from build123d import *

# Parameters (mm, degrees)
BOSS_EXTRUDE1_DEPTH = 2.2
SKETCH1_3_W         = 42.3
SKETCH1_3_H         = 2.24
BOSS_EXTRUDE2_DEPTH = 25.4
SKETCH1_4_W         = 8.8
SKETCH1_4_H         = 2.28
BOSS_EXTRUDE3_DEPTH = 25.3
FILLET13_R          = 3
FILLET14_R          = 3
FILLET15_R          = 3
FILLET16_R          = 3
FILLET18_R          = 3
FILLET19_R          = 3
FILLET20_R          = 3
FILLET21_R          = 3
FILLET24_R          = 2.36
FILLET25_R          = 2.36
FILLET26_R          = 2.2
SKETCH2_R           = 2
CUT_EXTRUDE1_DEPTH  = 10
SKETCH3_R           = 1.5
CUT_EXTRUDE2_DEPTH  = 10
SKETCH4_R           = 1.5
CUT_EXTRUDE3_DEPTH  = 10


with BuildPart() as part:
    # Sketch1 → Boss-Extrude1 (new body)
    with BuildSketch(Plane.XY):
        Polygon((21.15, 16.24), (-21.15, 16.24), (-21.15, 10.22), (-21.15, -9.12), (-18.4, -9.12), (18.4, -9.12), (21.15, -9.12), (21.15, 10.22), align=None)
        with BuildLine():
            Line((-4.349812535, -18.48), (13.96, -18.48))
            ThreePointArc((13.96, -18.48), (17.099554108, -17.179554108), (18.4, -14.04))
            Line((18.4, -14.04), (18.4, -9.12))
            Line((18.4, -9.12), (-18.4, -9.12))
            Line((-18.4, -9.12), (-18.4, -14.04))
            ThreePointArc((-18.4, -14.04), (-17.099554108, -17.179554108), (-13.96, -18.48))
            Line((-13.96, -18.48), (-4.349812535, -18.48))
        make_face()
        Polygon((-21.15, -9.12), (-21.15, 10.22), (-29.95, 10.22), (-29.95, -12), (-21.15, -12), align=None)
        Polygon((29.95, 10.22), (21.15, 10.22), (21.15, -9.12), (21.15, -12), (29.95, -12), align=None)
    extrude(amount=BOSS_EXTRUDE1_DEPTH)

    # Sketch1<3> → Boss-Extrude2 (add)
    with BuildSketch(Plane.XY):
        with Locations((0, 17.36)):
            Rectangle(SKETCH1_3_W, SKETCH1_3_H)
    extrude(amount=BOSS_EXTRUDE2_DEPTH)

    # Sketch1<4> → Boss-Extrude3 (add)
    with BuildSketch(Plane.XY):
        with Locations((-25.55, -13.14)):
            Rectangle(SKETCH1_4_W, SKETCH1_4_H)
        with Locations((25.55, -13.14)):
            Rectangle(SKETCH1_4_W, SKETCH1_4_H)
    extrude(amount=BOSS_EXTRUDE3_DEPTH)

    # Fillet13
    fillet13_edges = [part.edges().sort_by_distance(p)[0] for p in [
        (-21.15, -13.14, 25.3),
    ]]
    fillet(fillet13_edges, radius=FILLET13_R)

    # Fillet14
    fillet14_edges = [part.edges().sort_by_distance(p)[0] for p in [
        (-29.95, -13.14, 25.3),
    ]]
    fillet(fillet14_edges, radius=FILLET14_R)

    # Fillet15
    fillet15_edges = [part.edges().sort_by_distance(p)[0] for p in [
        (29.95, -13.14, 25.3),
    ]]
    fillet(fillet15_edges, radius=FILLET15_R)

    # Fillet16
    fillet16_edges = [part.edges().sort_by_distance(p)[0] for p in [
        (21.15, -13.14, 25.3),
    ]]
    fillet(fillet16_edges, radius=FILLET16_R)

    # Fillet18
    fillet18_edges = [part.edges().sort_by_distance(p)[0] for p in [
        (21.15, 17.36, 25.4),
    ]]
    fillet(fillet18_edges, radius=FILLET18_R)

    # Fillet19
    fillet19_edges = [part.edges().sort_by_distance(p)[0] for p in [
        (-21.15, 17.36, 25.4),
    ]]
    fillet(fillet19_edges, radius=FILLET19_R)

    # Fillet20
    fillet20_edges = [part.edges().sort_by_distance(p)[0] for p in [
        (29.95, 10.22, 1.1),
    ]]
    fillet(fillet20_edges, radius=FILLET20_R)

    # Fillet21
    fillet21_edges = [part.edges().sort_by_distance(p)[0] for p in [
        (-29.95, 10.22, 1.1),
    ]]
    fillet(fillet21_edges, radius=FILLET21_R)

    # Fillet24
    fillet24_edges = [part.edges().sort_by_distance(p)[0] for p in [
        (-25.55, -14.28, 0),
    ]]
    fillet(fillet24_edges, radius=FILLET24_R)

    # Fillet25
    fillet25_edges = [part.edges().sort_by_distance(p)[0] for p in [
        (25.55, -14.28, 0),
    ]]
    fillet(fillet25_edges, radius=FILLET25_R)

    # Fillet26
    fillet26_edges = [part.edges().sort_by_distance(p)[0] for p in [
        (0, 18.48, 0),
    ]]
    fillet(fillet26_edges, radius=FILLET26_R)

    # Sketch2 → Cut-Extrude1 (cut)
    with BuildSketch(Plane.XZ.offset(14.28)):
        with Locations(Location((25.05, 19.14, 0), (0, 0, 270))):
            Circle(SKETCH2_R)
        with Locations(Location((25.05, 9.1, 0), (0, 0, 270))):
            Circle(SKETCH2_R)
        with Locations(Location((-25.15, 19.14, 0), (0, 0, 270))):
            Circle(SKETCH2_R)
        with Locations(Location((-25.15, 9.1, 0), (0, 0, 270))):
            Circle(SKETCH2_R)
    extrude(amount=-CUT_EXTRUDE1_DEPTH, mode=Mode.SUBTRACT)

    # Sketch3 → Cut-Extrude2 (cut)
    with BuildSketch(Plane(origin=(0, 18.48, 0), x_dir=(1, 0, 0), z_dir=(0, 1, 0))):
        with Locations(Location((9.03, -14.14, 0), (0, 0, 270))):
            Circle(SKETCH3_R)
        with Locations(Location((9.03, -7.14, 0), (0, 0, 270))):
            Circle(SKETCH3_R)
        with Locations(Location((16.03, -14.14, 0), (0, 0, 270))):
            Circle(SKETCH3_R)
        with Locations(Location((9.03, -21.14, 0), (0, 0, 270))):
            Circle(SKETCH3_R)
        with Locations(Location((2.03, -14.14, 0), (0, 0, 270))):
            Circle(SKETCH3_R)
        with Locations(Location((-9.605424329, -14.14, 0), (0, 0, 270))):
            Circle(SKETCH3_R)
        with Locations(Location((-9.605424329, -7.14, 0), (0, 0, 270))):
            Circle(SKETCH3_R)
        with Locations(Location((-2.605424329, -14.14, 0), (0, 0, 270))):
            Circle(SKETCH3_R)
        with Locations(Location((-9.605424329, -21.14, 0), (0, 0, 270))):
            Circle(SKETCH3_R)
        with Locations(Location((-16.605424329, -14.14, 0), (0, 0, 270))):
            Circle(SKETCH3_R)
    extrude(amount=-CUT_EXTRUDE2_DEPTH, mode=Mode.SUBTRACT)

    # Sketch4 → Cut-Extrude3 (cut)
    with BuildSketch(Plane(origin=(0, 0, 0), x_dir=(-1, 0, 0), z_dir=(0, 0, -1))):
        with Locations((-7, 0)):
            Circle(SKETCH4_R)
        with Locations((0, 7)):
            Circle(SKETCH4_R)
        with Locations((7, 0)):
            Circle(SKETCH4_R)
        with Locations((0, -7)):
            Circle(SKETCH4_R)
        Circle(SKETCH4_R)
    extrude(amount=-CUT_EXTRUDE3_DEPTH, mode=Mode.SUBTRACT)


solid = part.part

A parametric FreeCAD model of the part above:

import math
import FreeCAD as App
import Part
import Sketcher
Q = App.Units.Quantity


def edges_at(feature, points):
    """Names of the edges that pass closest to the given points."""
    edges = feature.Shape.Edges
    near = lambda p: min(range(len(edges)), key=lambda i: edges[i].distToShape(Part.Vertex(*p))[0])
    return sorted({f"Edge{near(p) + 1}" for p in points})

doc = App.newDocument("Part")
body = doc.addObject("PartDesign::Body", "Body")

# Sketch on XY plane
sketch1 = body.newObject("Sketcher::SketchObject", "Sketch")
sketch1.AttachmentSupport = (doc.getObject("XY_Plane"), [""])
sketch1.MapMode = "FlatFace"
sketch1.addGeometry(Part.LineSegment(App.Vector(21.1, 16.2, 0), App.Vector(-21.1, 16.2, 0)), False)
sketch1.addGeometry(Part.LineSegment(App.Vector(-21.1, 16.2, 0), App.Vector(-21.1, 10.2, 0)), False)
sketch1.addGeometry(Part.LineSegment(App.Vector(-21.1, 10.2, 0), App.Vector(-29.9, 10.2, 0)), False)
sketch1.addGeometry(Part.LineSegment(App.Vector(-29.9, 10.2, 0), App.Vector(-29.9, -12, 0)), False)
sketch1.addGeometry(Part.LineSegment(App.Vector(-29.9, -12, 0), App.Vector(-21.1, -12, 0)), False)
sketch1.addGeometry(Part.LineSegment(App.Vector(-21.1, -12, 0), App.Vector(-21.1, -9.1, 0)), False)
sketch1.addGeometry(Part.LineSegment(App.Vector(-21.1, -9.1, 0), App.Vector(-18.4, -9.1, 0)), False)
sketch1.addGeometry(Part.LineSegment(App.Vector(-18.4, -9.1, 0), App.Vector(-18.4, -14, 0)), False)
sketch1.addGeometry(Part.ArcOfCircle(Part.Circle(App.Vector(-14, -14, 0), App.Vector(0, 0, 1), 4.4), math.radians(-180), math.radians(-90)), False)
sketch1.addGeometry(Part.LineSegment(App.Vector(-14, -18.5, 0), App.Vector(14, -18.5, 0)), False)
sketch1.addGeometry(Part.ArcOfCircle(Part.Circle(App.Vector(14, -14, 0), App.Vector(0, 0, 1), 4.4), math.radians(-90), math.radians(0)), False)
sketch1.addGeometry(Part.LineSegment(App.Vector(18.4, -14, 0), App.Vector(18.4, -9.1, 0)), False)
sketch1.addGeometry(Part.LineSegment(App.Vector(18.4, -9.1, 0), App.Vector(21.1, -9.1, 0)), False)
sketch1.addGeometry(Part.LineSegment(App.Vector(21.1, -9.1, 0), App.Vector(21.1, -12, 0)), False)
sketch1.addGeometry(Part.LineSegment(App.Vector(21.1, -12, 0), App.Vector(29.9, -12, 0)), False)
sketch1.addGeometry(Part.LineSegment(App.Vector(29.9, -12, 0), App.Vector(29.9, 10.2, 0)), False)
sketch1.addGeometry(Part.LineSegment(App.Vector(29.9, 10.2, 0), App.Vector(21.1, 10.2, 0)), False)
sketch1.addGeometry(Part.LineSegment(App.Vector(21.1, 10.2, 0), App.Vector(21.1, 16.2, 0)), False)
sketch1.addConstraint(Sketcher.Constraint("Coincident", 0, 2, 1, 1))
sketch1.addConstraint(Sketcher.Constraint("Coincident", 1, 2, 2, 1))
sketch1.addConstraint(Sketcher.Constraint("Coincident", 2, 2, 3, 1))
sketch1.addConstraint(Sketcher.Constraint("Coincident", 3, 2, 4, 1))
sketch1.addConstraint(Sketcher.Constraint("Coincident", 4, 2, 5, 1))
sketch1.addConstraint(Sketcher.Constraint("Coincident", 5, 2, 6, 1))
sketch1.addConstraint(Sketcher.Constraint("Coincident", 6, 2, 7, 1))
sketch1.addConstraint(Sketcher.Constraint("Tangent", 7, 2, 8, 1))
sketch1.addConstraint(Sketcher.Constraint("Tangent", 8, 2, 9, 1))
sketch1.addConstraint(Sketcher.Constraint("Tangent", 9, 2, 10, 1))
sketch1.addConstraint(Sketcher.Constraint("Tangent", 10, 2, 11, 1))
sketch1.addConstraint(Sketcher.Constraint("Coincident", 11, 2, 12, 1))
sketch1.addConstraint(Sketcher.Constraint("Coincident", 12, 2, 13, 1))
sketch1.addConstraint(Sketcher.Constraint("Coincident", 13, 2, 14, 1))
sketch1.addConstraint(Sketcher.Constraint("Coincident", 14, 2, 15, 1))
sketch1.addConstraint(Sketcher.Constraint("Coincident", 15, 2, 16, 1))
sketch1.addConstraint(Sketcher.Constraint("Coincident", 16, 2, 17, 1))
sketch1.addConstraint(Sketcher.Constraint("Coincident", 17, 2, 0, 1))
sketch1.addConstraint(Sketcher.Constraint("Horizontal", 0))
sketch1.addConstraint(Sketcher.Constraint("Vertical", 1))
sketch1.addConstraint(Sketcher.Constraint("Horizontal", 2))
sketch1.addConstraint(Sketcher.Constraint("Vertical", 3))
sketch1.addConstraint(Sketcher.Constraint("Horizontal", 4))
sketch1.addConstraint(Sketcher.Constraint("Vertical", 5))
sketch1.addConstraint(Sketcher.Constraint("Horizontal", 6))
sketch1.addConstraint(Sketcher.Constraint("Vertical", 7))
sketch1.addConstraint(Sketcher.Constraint("Horizontal", 9))
sketch1.addConstraint(Sketcher.Constraint("Vertical", 11))
sketch1.addConstraint(Sketcher.Constraint("Horizontal", 12))
sketch1.addConstraint(Sketcher.Constraint("Vertical", 13))
sketch1.addConstraint(Sketcher.Constraint("Horizontal", 14))
sketch1.addConstraint(Sketcher.Constraint("Vertical", 15))
sketch1.addConstraint(Sketcher.Constraint("Horizontal", 16))
sketch1.addConstraint(Sketcher.Constraint("Vertical", 17))
sketch1.addConstraint(Sketcher.Constraint("Equal", 8, 10))
sketch1.addConstraint(Sketcher.Constraint("Symmetric", 6, 2, 11, 2, -2))
sketch1.addConstraint(Sketcher.Constraint("Symmetric", 4, 2, 13, 2, -2))
sketch1.addConstraint(Sketcher.Constraint("Symmetric", 2, 2, 15, 2, -2))
sketch1.addConstraint(Sketcher.Constraint("Vertical", 1, 2, 4, 2))
sketch1.addConstraint(Sketcher.Constraint("Vertical", 13, 2, 16, 2))
sketch1.addConstraint(Sketcher.Constraint("Radius", 8, Q("4.44 mm")))
sketch1.addConstraint(Sketcher.Constraint("DistanceX", 0, 2, 0, 1, Q("42.3 mm")))
sketch1.addConstraint(Sketcher.Constraint("DistanceX", 2, 2, 2, 1, Q("8.8 mm")))
sketch1.addConstraint(Sketcher.Constraint("DistanceY", 3, 2, -1, 1, Q("12 mm")))
sketch1.addConstraint(Sketcher.Constraint("DistanceX", 6, 1, 6, 2, Q("2.75 mm")))
sketch1.addConstraint(Sketcher.Constraint("DistanceY", 1, 2, 1, 1, Q("6.02 mm")))
sketch1.addConstraint(Sketcher.Constraint("DistanceY", 3, 2, 3, 1, Q("22.22 mm")))
sketch1.addConstraint(Sketcher.Constraint("DistanceY", 5, 1, 5, 2, Q("2.88 mm")))
sketch1.addConstraint(Sketcher.Constraint("DistanceY", 7, 2, 7, 1, Q("4.92 mm")))
pad1 = body.newObject("PartDesign::Pad", "Pad")
pad1.Profile = sketch1
pad1.Length = 2.2

# Sketch on XY plane
sketch2 = body.newObject("Sketcher::SketchObject", "Sketch001")
sketch2.AttachmentSupport = (doc.getObject("XY_Plane"), [""])
sketch2.MapMode = "FlatFace"
sketch2.addGeometry(Part.LineSegment(App.Vector(-21.1, 18.5, 0), App.Vector(-21.1, 16.2, 0)), False)
sketch2.addGeometry(Part.LineSegment(App.Vector(-21.1, 16.2, 0), App.Vector(21.1, 16.2, 0)), False)
sketch2.addGeometry(Part.LineSegment(App.Vector(21.1, 16.2, 0), App.Vector(21.1, 18.5, 0)), False)
sketch2.addGeometry(Part.LineSegment(App.Vector(21.1, 18.5, 0), App.Vector(-21.1, 18.5, 0)), False)
sketch2.addConstraint(Sketcher.Constraint("Coincident", 0, 2, 1, 1))
sketch2.addConstraint(Sketcher.Constraint("Coincident", 1, 2, 2, 1))
sketch2.addConstraint(Sketcher.Constraint("Coincident", 2, 2, 3, 1))
sketch2.addConstraint(Sketcher.Constraint("Coincident", 3, 2, 0, 1))
sketch2.addConstraint(Sketcher.Constraint("Vertical", 0))
sketch2.addConstraint(Sketcher.Constraint("Horizontal", 1))
sketch2.addConstraint(Sketcher.Constraint("Vertical", 2))
sketch2.addConstraint(Sketcher.Constraint("Horizontal", 3))
sketch2.addConstraint(Sketcher.Constraint("DistanceX", 1, 1, 1, 2, Q("42.3 mm")))
sketch2.addConstraint(Sketcher.Constraint("DistanceY", 0, 2, 0, 1, Q("2.24 mm")))
sketch2.addConstraint(Sketcher.Constraint("DistanceX", 0, 2, -1, 1, Q("21.15 mm")))
sketch2.addConstraint(Sketcher.Constraint("DistanceY", -1, 1, 0, 2, Q("16.24 mm")))
pad2 = body.newObject("PartDesign::Pad", "Pad001")
pad2.Profile = sketch2
pad2.Length = 25.4

# Sketch on XY plane
sketch3 = body.newObject("Sketcher::SketchObject", "Sketch002")
sketch3.AttachmentSupport = (doc.getObject("XY_Plane"), [""])
sketch3.MapMode = "FlatFace"
sketch3.addGeometry(Part.LineSegment(App.Vector(-29.9, -12, 0), App.Vector(-29.9, -14.3, 0)), False)
sketch3.addGeometry(Part.LineSegment(App.Vector(-29.9, -14.3, 0), App.Vector(-21.1, -14.3, 0)), False)
sketch3.addGeometry(Part.LineSegment(App.Vector(-21.1, -14.3, 0), App.Vector(-21.1, -12, 0)), False)
sketch3.addGeometry(Part.LineSegment(App.Vector(-21.1, -12, 0), App.Vector(-29.9, -12, 0)), False)
sketch3.addGeometry(Part.LineSegment(App.Vector(21.1, -12, 0), App.Vector(21.1, -14.3, 0)), False)
sketch3.addGeometry(Part.LineSegment(App.Vector(21.1, -14.3, 0), App.Vector(29.9, -14.3, 0)), False)
sketch3.addGeometry(Part.LineSegment(App.Vector(29.9, -14.3, 0), App.Vector(29.9, -12, 0)), False)
sketch3.addGeometry(Part.LineSegment(App.Vector(29.9, -12, 0), App.Vector(21.1, -12, 0)), False)
sketch3.addConstraint(Sketcher.Constraint("Coincident", 0, 2, 1, 1))
sketch3.addConstraint(Sketcher.Constraint("Coincident", 1, 2, 2, 1))
sketch3.addConstraint(Sketcher.Constraint("Coincident", 2, 2, 3, 1))
sketch3.addConstraint(Sketcher.Constraint("Coincident", 3, 2, 0, 1))
sketch3.addConstraint(Sketcher.Constraint("Coincident", 4, 2, 5, 1))
sketch3.addConstraint(Sketcher.Constraint("Coincident", 5, 2, 6, 1))
sketch3.addConstraint(Sketcher.Constraint("Coincident", 6, 2, 7, 1))
sketch3.addConstraint(Sketcher.Constraint("Coincident", 7, 2, 4, 1))
sketch3.addConstraint(Sketcher.Constraint("Vertical", 0))
sketch3.addConstraint(Sketcher.Constraint("Horizontal", 1))
sketch3.addConstraint(Sketcher.Constraint("Vertical", 2))
sketch3.addConstraint(Sketcher.Constraint("Horizontal", 3))
sketch3.addConstraint(Sketcher.Constraint("Vertical", 4))
sketch3.addConstraint(Sketcher.Constraint("Horizontal", 5))
sketch3.addConstraint(Sketcher.Constraint("Vertical", 6))
sketch3.addConstraint(Sketcher.Constraint("Horizontal", 7))
sketch3.addConstraint(Sketcher.Constraint("Symmetric", 1, 2, 4, 2, -2))
sketch3.addConstraint(Sketcher.Constraint("Symmetric", 3, 2, 6, 2, -2))
sketch3.addConstraint(Sketcher.Constraint("DistanceX", 1, 1, 1, 2, Q("8.8 mm")))
sketch3.addConstraint(Sketcher.Constraint("DistanceY", 2, 2, -1, 1, Q("12 mm")))
sketch3.addConstraint(Sketcher.Constraint("DistanceY", 0, 2, 0, 1, Q("2.28 mm")))
sketch3.addConstraint(Sketcher.Constraint("DistanceX", 1, 2, 4, 2, Q("42.3 mm")))
pad3 = body.newObject("PartDesign::Pad", "Pad002")
pad3.Profile = sketch3
pad3.Length = 25.3
doc.recompute()

fillet = body.newObject("PartDesign::Fillet", "Fillet")
fillet.Base = (pad3, edges_at(pad3, [(-21.15, -13.14, 25.3)]))
fillet.Radius = 3
doc.recompute()

fillet2 = body.newObject("PartDesign::Fillet", "Fillet001")
fillet2.Base = (fillet, edges_at(fillet, [(-29.95, -13.14, 25.3)]))
fillet2.Radius = 3
doc.recompute()

fillet3 = body.newObject("PartDesign::Fillet", "Fillet002")
fillet3.Base = (fillet2, edges_at(fillet2, [(29.95, -13.14, 25.3)]))
fillet3.Radius = 3
doc.recompute()

fillet4 = body.newObject("PartDesign::Fillet", "Fillet003")
fillet4.Base = (fillet3, edges_at(fillet3, [(21.15, -13.14, 25.3)]))
fillet4.Radius = 3
doc.recompute()

fillet5 = body.newObject("PartDesign::Fillet", "Fillet004")
fillet5.Base = (fillet4, edges_at(fillet4, [(21.15, 17.36, 25.4)]))
fillet5.Radius = 3
doc.recompute()

fillet6 = body.newObject("PartDesign::Fillet", "Fillet005")
fillet6.Base = (fillet5, edges_at(fillet5, [(-21.15, 17.36, 25.4)]))
fillet6.Radius = 3
doc.recompute()

fillet7 = body.newObject("PartDesign::Fillet", "Fillet006")
fillet7.Base = (fillet6, edges_at(fillet6, [(29.95, 10.22, 1.1)]))
fillet7.Radius = 3
doc.recompute()

fillet8 = body.newObject("PartDesign::Fillet", "Fillet007")
fillet8.Base = (fillet7, edges_at(fillet7, [(-29.95, 10.22, 1.1)]))
fillet8.Radius = 3
doc.recompute()

fillet9 = body.newObject("PartDesign::Fillet", "Fillet008")
fillet9.Base = (fillet8, edges_at(fillet8, [(-25.55, -14.28, 0)]))
fillet9.Radius = 2.36
doc.recompute()

fillet10 = body.newObject("PartDesign::Fillet", "Fillet009")
fillet10.Base = (fillet9, edges_at(fillet9, [(25.55, -14.28, 0)]))
fillet10.Radius = 2.36
doc.recompute()

fillet11 = body.newObject("PartDesign::Fillet", "Fillet010")
fillet11.Base = (fillet10, edges_at(fillet10, [(0, 18.48, 0)]))
fillet11.Radius = 2.2

# Sketch on XZ plane
sketch4 = body.newObject("Sketcher::SketchObject", "Sketch003")
sketch4.AttachmentSupport = (doc.getObject("XZ_Plane"), [""])
sketch4.MapMode = "FlatFace"
sketch4.AttachmentOffset = App.Placement(App.Vector(0, 0, 14.28), App.Rotation())
sketch4.addGeometry(Part.Circle(App.Vector(25.1, 19.1, 0), App.Vector(0, 0, 1), 2), False)
sketch4.addGeometry(Part.Circle(App.Vector(25.1, 9.1, 0), App.Vector(0, 0, 1), 2), False)
sketch4.addGeometry(Part.Circle(App.Vector(-25.1, 19.1, 0), App.Vector(0, 0, 1), 2), False)
sketch4.addGeometry(Part.Circle(App.Vector(-25.1, 9.1, 0), App.Vector(0, 0, 1), 2), False)
sketch4.addConstraint(Sketcher.Constraint("Equal", 0, 1))
sketch4.addConstraint(Sketcher.Constraint("Equal", 1, 2))
sketch4.addConstraint(Sketcher.Constraint("Equal", 2, 3))
sketch4.addConstraint(Sketcher.Constraint("Horizontal", 0, 3, 2, 3))
sketch4.addConstraint(Sketcher.Constraint("Horizontal", 1, 3, 3, 3))
sketch4.addConstraint(Sketcher.Constraint("Vertical", 0, 3, 1, 3))
sketch4.addConstraint(Sketcher.Constraint("Vertical", 2, 3, 3, 3))
sketch4.addConstraint(Sketcher.Constraint("Diameter", 0, Q("4 mm")))
sketch4.addConstraint(Sketcher.Constraint("DistanceY", -1, 1, 1, 3, Q("9.1 mm")))
sketch4.addConstraint(Sketcher.Constraint("DistanceX", 2, 3, 0, 3, Q("50.2 mm")))
sketch4.addConstraint(Sketcher.Constraint("DistanceX", -1, 1, 0, 3, Q("25.05 mm")))
sketch4.addConstraint(Sketcher.Constraint("DistanceY", -1, 1, 0, 3, Q("19.14 mm")))
pocket1 = body.newObject("PartDesign::Pocket", "Pocket")
pocket1.Profile = sketch4
pocket1.Length = 10

# Sketch on XZ plane
sketch5 = body.newObject("Sketcher::SketchObject", "Sketch004")
sketch5.AttachmentSupport = (doc.getObject("XZ_Plane"), [""])
sketch5.MapMode = "FlatFace"
sketch5.AttachmentOffset = App.Placement(App.Vector(0, 0, -18.48), App.Rotation())
sketch5.addGeometry(Part.Circle(App.Vector(9, 14.1, 0), App.Vector(0, 0, 1), 1.5), False)
sketch5.addGeometry(Part.Circle(App.Vector(9, 7.1, 0), App.Vector(0, 0, 1), 1.5), False)
sketch5.addGeometry(Part.Circle(App.Vector(16, 14.1, 0), App.Vector(0, 0, 1), 1.5), False)
sketch5.addGeometry(Part.Circle(App.Vector(9, 21.1, 0), App.Vector(0, 0, 1), 1.5), False)
sketch5.addGeometry(Part.Circle(App.Vector(2, 14.1, 0), App.Vector(0, 0, 1), 1.5), False)
sketch5.addGeometry(Part.Circle(App.Vector(-9.6, 14.1, 0), App.Vector(0, 0, 1), 1.5), False)
sketch5.addGeometry(Part.Circle(App.Vector(-9.6, 7.1, 0), App.Vector(0, 0, 1), 1.5), False)
sketch5.addGeometry(Part.Circle(App.Vector(-2.6, 14.1, 0), App.Vector(0, 0, 1), 1.5), False)
sketch5.addGeometry(Part.Circle(App.Vector(-9.6, 21.1, 0), App.Vector(0, 0, 1), 1.5), False)
sketch5.addGeometry(Part.Circle(App.Vector(-16.6, 14.1, 0), App.Vector(0, 0, 1), 1.5), False)
sketch5.addConstraint(Sketcher.Constraint("Equal", 0, 1))
sketch5.addConstraint(Sketcher.Constraint("Equal", 1, 2))
sketch5.addConstraint(Sketcher.Constraint("Equal", 2, 3))
sketch5.addConstraint(Sketcher.Constraint("Equal", 3, 4))
sketch5.addConstraint(Sketcher.Constraint("Equal", 4, 5))
sketch5.addConstraint(Sketcher.Constraint("Equal", 5, 6))
sketch5.addConstraint(Sketcher.Constraint("Equal", 6, 7))
sketch5.addConstraint(Sketcher.Constraint("Equal", 7, 8))
sketch5.addConstraint(Sketcher.Constraint("Equal", 8, 9))
sketch5.addConstraint(Sketcher.Constraint("Horizontal", 0, 3, 2, 3))
sketch5.addConstraint(Sketcher.Constraint("Horizontal", 2, 3, 4, 3))
sketch5.addConstraint(Sketcher.Constraint("Horizontal", 4, 3, 5, 3))
sketch5.addConstraint(Sketcher.Constraint("Horizontal", 1, 3, 6, 3))
sketch5.addConstraint(Sketcher.Constraint("Horizontal", 5, 3, 7, 3))
sketch5.addConstraint(Sketcher.Constraint("Horizontal", 3, 3, 8, 3))
sketch5.addConstraint(Sketcher.Constraint("Horizontal", 7, 3, 9, 3))
sketch5.addConstraint(Sketcher.Constraint("Vertical", 0, 3, 1, 3))
sketch5.addConstraint(Sketcher.Constraint("Vertical", 1, 3, 3, 3))
sketch5.addConstraint(Sketcher.Constraint("Vertical", 5, 3, 6, 3))
sketch5.addConstraint(Sketcher.Constraint("Vertical", 6, 3, 8, 3))
sketch5.addConstraint(Sketcher.Constraint("Diameter", 0, Q("3 mm")))
sketch5.addConstraint(Sketcher.Constraint("DistanceY", 1, 3, 0, 3, Q("7 mm")))
sketch5.addConstraint(Sketcher.Constraint("DistanceX", 0, 3, 2, 3, Q("7 mm")))
sketch5.addConstraint(Sketcher.Constraint("DistanceY", 0, 3, 3, 3, Q("7 mm")))
sketch5.addConstraint(Sketcher.Constraint("DistanceX", 4, 3, 0, 3, Q("7 mm")))
sketch5.addConstraint(Sketcher.Constraint("DistanceX", 5, 3, 7, 3, Q("7 mm")))
sketch5.addConstraint(Sketcher.Constraint("DistanceX", 9, 3, 5, 3, Q("7 mm")))
sketch5.addConstraint(Sketcher.Constraint("DistanceX", -1, 1, 0, 3, Q("9.03 mm")))
sketch5.addConstraint(Sketcher.Constraint("DistanceY", -1, 1, 0, 3, Q("14.14 mm")))
sketch5.addConstraint(Sketcher.Constraint("DistanceX", 5, 3, -1, 1, Q("9.605424 mm")))
pocket2 = body.newObject("PartDesign::Pocket", "Pocket001")
pocket2.Profile = sketch5
pocket2.Length = 10
pocket2.Reversed = True

# Sketch on XY plane
sketch6 = body.newObject("Sketcher::SketchObject", "Sketch005")
sketch6.AttachmentSupport = (doc.getObject("XY_Plane"), [""])
sketch6.MapMode = "FlatFace"
sketch6.addGeometry(Part.Circle(App.Vector(7, 0, 0), App.Vector(0, 0, 1), 1.5), False)
sketch6.addGeometry(Part.Circle(App.Vector(0, 7, 0), App.Vector(0, 0, 1), 1.5), False)
sketch6.addGeometry(Part.Circle(App.Vector(-7, 0, 0), App.Vector(0, 0, 1), 1.5), False)
sketch6.addGeometry(Part.Circle(App.Vector(0, -7, 0), App.Vector(0, 0, 1), 1.5), False)
sketch6.addGeometry(Part.Circle(App.Vector(0, 0, 0), App.Vector(0, 0, 1), 1.5), False)
sketch6.addConstraint(Sketcher.Constraint("Coincident", 4, 3, -1, 1))
sketch6.addConstraint(Sketcher.Constraint("Equal", 0, 1))
sketch6.addConstraint(Sketcher.Constraint("Equal", 1, 2))
sketch6.addConstraint(Sketcher.Constraint("Equal", 2, 3))
sketch6.addConstraint(Sketcher.Constraint("Equal", 3, 4))
sketch6.addConstraint(Sketcher.Constraint("Symmetric", 0, 3, 2, 3, -1, 1))
sketch6.addConstraint(Sketcher.Constraint("Symmetric", 1, 3, 3, 3, -1, 1))
sketch6.addConstraint(Sketcher.Constraint("PointOnObject", 0, 3, -1))
sketch6.addConstraint(Sketcher.Constraint("PointOnObject", 1, 3, -2))
sketch6.addConstraint(Sketcher.Constraint("Diameter", 0, Q("3 mm")))
sketch6.addConstraint(Sketcher.Constraint("DistanceX", -1, 1, 0, 3, Q("7 mm")))
sketch6.addConstraint(Sketcher.Constraint("DistanceY", -1, 1, 1, 3, Q("7 mm")))
pocket3 = body.newObject("PartDesign::Pocket", "Pocket002")
pocket3.Profile = sketch6
pocket3.Length = 10
pocket3.Reversed = True

doc.recompute()
